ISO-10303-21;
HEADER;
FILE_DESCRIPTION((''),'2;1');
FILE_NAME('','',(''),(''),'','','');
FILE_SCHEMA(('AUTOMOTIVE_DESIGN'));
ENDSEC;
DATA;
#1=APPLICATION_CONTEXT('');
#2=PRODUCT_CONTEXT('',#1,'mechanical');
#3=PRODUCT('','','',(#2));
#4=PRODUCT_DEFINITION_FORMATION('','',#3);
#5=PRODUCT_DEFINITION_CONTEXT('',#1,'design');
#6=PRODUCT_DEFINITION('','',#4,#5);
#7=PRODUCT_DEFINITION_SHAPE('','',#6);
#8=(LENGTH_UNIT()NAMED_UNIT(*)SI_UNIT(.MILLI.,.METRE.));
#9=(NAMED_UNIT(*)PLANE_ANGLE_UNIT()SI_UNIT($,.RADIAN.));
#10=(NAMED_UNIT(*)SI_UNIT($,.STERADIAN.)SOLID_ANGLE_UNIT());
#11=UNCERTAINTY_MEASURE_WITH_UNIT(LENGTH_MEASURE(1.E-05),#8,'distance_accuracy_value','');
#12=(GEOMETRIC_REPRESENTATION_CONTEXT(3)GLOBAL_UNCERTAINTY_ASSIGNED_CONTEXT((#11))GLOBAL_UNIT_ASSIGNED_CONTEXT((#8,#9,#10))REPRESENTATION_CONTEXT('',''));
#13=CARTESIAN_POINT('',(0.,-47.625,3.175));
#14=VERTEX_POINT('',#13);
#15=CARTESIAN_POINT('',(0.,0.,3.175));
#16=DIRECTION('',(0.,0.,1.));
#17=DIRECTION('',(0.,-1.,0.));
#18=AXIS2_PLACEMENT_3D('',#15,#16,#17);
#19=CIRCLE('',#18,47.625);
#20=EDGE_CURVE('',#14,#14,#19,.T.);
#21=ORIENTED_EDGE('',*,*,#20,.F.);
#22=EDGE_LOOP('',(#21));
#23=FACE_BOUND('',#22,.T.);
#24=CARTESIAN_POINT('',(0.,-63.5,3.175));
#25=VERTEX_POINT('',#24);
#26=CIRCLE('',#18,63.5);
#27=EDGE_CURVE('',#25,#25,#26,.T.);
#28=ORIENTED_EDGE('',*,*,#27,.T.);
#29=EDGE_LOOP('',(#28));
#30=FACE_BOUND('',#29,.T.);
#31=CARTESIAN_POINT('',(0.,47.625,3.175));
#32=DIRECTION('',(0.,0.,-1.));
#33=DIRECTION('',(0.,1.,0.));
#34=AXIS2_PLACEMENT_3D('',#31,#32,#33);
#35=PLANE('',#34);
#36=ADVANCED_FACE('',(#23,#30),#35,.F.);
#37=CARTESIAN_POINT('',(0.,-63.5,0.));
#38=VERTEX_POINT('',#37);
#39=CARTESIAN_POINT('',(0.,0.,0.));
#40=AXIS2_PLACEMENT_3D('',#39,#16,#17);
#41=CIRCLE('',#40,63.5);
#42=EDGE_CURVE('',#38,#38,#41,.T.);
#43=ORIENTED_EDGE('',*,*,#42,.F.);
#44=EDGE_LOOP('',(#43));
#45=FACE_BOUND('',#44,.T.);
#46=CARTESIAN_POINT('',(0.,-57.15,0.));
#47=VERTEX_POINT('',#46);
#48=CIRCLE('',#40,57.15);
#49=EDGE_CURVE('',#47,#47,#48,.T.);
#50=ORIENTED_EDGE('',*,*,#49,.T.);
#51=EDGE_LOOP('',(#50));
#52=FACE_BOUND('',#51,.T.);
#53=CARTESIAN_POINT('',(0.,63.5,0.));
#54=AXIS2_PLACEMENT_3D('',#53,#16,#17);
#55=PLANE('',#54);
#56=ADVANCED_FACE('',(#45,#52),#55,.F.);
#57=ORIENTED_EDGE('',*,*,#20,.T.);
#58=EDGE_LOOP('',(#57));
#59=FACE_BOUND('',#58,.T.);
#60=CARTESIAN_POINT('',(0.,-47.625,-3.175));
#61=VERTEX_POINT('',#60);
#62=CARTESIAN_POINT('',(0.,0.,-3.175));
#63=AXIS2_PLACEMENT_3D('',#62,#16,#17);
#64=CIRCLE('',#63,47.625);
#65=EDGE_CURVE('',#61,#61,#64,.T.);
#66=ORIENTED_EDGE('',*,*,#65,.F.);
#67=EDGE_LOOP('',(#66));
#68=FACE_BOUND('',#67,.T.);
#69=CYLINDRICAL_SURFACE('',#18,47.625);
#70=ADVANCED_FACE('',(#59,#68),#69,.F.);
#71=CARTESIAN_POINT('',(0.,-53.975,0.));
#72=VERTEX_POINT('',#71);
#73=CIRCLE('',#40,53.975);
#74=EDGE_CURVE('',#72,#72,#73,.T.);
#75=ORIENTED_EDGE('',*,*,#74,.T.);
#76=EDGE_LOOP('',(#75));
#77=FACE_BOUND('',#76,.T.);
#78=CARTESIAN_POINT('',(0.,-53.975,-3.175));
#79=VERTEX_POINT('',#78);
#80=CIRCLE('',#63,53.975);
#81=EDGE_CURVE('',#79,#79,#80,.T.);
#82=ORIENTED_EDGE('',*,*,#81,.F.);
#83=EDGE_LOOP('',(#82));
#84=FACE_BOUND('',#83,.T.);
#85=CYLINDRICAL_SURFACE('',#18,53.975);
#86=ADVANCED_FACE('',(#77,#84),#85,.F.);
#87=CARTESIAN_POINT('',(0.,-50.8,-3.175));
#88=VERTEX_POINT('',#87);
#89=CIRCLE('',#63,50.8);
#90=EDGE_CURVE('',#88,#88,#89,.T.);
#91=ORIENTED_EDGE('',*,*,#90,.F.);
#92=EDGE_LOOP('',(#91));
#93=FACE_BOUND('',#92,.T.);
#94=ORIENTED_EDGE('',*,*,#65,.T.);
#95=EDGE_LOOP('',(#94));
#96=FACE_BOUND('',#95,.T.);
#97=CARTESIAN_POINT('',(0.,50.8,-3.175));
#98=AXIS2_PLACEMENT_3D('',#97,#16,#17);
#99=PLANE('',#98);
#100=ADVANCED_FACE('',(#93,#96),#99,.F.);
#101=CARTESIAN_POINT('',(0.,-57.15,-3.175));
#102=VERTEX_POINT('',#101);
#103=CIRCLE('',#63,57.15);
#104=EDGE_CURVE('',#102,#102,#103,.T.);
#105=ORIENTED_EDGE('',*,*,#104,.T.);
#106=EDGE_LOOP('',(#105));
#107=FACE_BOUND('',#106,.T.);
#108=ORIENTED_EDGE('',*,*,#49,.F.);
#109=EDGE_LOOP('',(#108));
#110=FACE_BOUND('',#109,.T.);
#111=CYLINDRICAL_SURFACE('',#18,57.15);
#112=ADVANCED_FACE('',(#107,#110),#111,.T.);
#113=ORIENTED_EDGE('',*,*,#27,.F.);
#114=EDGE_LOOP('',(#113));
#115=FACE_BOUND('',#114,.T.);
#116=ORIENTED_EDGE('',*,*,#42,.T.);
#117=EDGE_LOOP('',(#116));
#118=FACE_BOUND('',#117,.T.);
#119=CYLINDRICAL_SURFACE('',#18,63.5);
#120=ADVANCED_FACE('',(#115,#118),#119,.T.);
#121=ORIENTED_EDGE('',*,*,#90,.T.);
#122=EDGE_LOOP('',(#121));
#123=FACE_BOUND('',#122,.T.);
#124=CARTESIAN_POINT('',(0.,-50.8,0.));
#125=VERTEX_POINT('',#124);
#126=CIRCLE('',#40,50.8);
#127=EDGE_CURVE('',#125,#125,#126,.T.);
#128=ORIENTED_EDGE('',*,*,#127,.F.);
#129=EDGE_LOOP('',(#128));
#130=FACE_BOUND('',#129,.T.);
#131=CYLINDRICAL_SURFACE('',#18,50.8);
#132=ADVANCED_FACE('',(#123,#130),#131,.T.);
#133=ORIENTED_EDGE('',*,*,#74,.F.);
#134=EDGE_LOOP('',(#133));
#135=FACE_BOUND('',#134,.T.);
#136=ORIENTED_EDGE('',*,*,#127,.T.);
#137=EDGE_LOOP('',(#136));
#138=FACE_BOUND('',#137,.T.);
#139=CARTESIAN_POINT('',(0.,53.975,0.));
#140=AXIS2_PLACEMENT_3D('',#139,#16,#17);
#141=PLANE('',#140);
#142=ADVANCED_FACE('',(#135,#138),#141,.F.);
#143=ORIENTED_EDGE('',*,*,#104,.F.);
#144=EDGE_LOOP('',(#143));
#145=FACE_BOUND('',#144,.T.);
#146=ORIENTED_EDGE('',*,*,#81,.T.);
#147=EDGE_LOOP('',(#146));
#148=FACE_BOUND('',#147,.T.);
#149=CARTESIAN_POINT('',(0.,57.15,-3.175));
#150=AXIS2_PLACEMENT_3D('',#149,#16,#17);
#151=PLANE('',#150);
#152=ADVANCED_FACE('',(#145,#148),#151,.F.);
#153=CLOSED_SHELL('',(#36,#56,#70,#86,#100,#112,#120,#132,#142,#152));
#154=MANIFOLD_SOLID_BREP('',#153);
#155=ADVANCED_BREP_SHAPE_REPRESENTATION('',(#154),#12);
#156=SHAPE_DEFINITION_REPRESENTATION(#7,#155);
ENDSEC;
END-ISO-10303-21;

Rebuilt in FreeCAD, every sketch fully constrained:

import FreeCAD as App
import Part
import Sketcher
Q = App.Units.Quantity


def add_polygon(sketch, points):
    """Adds a closed chain of lines whose ends are joined by coincident constraints."""
    first, n = sketch.GeometryCount, len(points)
    for a, b in zip(points, points[1:] + points[:1]):
        sketch.addGeometry(Part.LineSegment(App.Vector(*a, 0), App.Vector(*b, 0)), False)
    for i in range(n):
        sketch.addConstraint(Sketcher.Constraint("Coincident", first + i, 2, first + (i + 1) % n, 1))

doc = App.newDocument("Part")
params = doc.addObject("Spreadsheet::Sheet", "Params")
for row, (alias, value) in enumerate([
    ("sketch1_width", "0.25 in"),
    ("revolution_angle", "360 deg"),
], start=1):
    params.set(f"A{row}", alias)
    params.set(f"B{row}", "=" + value)
    params.setAlias(f"B{row}", alias)

body = doc.addObject("PartDesign::Body", "Body")

sketch1 = doc.addObject("Sketcher::SketchObject", "Sketch")
body.addObject(sketch1)
sketch1.AttachmentSupport = (doc.YZ_Plane, [""])
sketch1.MapMode = "FlatFace"
add_polygon(sketch1, [(47.6, 3.2), (47.6, -3.2), (50.8, -3.2), (50.8, 0), (54, 0), (54, -3.2), (57.1, -3.2), (57.1, 0), (63.5, 0), (63.5, 3.2)])
sketch1.addConstraint([
    Sketcher.Constraint("Vertical", 0),
    Sketcher.Constraint("Horizontal", 1),
    Sketcher.Constraint("Vertical", 2),
    Sketcher.Constraint("Horizontal", 3),
    Sketcher.Constraint("Vertical", 4),
    Sketcher.Constraint("Horizontal", 5),
    Sketcher.Constraint("Vertical", 6),
    Sketcher.Constraint("Horizontal", 7),
    Sketcher.Constraint("Vertical", 8),
    Sketcher.Constraint("Horizontal", 9),
    Sketcher.Constraint("PointOnObject", 2, 2, -1),
    Sketcher.Constraint("PointOnObject", 6, 2, -1),
    Sketcher.Constraint("Horizontal", 1, 2, 4, 2),
    Sketcher.Constraint("Equal", 1, 3),
    Sketcher.Constraint("Equal", 3, 5),
    Sketcher.Constraint("Equal", 7, 0),
    Sketcher.Constraint("Equal", 5, 2),
    Sketcher.Constraint("Equal", 6, 8),
    Sketcher.Constraint("DistanceX", -1, 1, 1, 2, Q("2 in")),
    Sketcher.Constraint("DistanceX", 7, 1, 7, 2, Q("0.25 in")),
])
sketch1.setExpression("Constraints[29]", "Params.sketch1_width")
revolution = doc.addObject("PartDesign::Revolution", "Revolution")
body.addObject(revolution)
revolution.Profile = sketch1
revolution.ReferenceAxis = (sketch1, ["V_Axis"])
revolution.setExpression("Angle", "Params.revolution_angle")

doc.recompute()
